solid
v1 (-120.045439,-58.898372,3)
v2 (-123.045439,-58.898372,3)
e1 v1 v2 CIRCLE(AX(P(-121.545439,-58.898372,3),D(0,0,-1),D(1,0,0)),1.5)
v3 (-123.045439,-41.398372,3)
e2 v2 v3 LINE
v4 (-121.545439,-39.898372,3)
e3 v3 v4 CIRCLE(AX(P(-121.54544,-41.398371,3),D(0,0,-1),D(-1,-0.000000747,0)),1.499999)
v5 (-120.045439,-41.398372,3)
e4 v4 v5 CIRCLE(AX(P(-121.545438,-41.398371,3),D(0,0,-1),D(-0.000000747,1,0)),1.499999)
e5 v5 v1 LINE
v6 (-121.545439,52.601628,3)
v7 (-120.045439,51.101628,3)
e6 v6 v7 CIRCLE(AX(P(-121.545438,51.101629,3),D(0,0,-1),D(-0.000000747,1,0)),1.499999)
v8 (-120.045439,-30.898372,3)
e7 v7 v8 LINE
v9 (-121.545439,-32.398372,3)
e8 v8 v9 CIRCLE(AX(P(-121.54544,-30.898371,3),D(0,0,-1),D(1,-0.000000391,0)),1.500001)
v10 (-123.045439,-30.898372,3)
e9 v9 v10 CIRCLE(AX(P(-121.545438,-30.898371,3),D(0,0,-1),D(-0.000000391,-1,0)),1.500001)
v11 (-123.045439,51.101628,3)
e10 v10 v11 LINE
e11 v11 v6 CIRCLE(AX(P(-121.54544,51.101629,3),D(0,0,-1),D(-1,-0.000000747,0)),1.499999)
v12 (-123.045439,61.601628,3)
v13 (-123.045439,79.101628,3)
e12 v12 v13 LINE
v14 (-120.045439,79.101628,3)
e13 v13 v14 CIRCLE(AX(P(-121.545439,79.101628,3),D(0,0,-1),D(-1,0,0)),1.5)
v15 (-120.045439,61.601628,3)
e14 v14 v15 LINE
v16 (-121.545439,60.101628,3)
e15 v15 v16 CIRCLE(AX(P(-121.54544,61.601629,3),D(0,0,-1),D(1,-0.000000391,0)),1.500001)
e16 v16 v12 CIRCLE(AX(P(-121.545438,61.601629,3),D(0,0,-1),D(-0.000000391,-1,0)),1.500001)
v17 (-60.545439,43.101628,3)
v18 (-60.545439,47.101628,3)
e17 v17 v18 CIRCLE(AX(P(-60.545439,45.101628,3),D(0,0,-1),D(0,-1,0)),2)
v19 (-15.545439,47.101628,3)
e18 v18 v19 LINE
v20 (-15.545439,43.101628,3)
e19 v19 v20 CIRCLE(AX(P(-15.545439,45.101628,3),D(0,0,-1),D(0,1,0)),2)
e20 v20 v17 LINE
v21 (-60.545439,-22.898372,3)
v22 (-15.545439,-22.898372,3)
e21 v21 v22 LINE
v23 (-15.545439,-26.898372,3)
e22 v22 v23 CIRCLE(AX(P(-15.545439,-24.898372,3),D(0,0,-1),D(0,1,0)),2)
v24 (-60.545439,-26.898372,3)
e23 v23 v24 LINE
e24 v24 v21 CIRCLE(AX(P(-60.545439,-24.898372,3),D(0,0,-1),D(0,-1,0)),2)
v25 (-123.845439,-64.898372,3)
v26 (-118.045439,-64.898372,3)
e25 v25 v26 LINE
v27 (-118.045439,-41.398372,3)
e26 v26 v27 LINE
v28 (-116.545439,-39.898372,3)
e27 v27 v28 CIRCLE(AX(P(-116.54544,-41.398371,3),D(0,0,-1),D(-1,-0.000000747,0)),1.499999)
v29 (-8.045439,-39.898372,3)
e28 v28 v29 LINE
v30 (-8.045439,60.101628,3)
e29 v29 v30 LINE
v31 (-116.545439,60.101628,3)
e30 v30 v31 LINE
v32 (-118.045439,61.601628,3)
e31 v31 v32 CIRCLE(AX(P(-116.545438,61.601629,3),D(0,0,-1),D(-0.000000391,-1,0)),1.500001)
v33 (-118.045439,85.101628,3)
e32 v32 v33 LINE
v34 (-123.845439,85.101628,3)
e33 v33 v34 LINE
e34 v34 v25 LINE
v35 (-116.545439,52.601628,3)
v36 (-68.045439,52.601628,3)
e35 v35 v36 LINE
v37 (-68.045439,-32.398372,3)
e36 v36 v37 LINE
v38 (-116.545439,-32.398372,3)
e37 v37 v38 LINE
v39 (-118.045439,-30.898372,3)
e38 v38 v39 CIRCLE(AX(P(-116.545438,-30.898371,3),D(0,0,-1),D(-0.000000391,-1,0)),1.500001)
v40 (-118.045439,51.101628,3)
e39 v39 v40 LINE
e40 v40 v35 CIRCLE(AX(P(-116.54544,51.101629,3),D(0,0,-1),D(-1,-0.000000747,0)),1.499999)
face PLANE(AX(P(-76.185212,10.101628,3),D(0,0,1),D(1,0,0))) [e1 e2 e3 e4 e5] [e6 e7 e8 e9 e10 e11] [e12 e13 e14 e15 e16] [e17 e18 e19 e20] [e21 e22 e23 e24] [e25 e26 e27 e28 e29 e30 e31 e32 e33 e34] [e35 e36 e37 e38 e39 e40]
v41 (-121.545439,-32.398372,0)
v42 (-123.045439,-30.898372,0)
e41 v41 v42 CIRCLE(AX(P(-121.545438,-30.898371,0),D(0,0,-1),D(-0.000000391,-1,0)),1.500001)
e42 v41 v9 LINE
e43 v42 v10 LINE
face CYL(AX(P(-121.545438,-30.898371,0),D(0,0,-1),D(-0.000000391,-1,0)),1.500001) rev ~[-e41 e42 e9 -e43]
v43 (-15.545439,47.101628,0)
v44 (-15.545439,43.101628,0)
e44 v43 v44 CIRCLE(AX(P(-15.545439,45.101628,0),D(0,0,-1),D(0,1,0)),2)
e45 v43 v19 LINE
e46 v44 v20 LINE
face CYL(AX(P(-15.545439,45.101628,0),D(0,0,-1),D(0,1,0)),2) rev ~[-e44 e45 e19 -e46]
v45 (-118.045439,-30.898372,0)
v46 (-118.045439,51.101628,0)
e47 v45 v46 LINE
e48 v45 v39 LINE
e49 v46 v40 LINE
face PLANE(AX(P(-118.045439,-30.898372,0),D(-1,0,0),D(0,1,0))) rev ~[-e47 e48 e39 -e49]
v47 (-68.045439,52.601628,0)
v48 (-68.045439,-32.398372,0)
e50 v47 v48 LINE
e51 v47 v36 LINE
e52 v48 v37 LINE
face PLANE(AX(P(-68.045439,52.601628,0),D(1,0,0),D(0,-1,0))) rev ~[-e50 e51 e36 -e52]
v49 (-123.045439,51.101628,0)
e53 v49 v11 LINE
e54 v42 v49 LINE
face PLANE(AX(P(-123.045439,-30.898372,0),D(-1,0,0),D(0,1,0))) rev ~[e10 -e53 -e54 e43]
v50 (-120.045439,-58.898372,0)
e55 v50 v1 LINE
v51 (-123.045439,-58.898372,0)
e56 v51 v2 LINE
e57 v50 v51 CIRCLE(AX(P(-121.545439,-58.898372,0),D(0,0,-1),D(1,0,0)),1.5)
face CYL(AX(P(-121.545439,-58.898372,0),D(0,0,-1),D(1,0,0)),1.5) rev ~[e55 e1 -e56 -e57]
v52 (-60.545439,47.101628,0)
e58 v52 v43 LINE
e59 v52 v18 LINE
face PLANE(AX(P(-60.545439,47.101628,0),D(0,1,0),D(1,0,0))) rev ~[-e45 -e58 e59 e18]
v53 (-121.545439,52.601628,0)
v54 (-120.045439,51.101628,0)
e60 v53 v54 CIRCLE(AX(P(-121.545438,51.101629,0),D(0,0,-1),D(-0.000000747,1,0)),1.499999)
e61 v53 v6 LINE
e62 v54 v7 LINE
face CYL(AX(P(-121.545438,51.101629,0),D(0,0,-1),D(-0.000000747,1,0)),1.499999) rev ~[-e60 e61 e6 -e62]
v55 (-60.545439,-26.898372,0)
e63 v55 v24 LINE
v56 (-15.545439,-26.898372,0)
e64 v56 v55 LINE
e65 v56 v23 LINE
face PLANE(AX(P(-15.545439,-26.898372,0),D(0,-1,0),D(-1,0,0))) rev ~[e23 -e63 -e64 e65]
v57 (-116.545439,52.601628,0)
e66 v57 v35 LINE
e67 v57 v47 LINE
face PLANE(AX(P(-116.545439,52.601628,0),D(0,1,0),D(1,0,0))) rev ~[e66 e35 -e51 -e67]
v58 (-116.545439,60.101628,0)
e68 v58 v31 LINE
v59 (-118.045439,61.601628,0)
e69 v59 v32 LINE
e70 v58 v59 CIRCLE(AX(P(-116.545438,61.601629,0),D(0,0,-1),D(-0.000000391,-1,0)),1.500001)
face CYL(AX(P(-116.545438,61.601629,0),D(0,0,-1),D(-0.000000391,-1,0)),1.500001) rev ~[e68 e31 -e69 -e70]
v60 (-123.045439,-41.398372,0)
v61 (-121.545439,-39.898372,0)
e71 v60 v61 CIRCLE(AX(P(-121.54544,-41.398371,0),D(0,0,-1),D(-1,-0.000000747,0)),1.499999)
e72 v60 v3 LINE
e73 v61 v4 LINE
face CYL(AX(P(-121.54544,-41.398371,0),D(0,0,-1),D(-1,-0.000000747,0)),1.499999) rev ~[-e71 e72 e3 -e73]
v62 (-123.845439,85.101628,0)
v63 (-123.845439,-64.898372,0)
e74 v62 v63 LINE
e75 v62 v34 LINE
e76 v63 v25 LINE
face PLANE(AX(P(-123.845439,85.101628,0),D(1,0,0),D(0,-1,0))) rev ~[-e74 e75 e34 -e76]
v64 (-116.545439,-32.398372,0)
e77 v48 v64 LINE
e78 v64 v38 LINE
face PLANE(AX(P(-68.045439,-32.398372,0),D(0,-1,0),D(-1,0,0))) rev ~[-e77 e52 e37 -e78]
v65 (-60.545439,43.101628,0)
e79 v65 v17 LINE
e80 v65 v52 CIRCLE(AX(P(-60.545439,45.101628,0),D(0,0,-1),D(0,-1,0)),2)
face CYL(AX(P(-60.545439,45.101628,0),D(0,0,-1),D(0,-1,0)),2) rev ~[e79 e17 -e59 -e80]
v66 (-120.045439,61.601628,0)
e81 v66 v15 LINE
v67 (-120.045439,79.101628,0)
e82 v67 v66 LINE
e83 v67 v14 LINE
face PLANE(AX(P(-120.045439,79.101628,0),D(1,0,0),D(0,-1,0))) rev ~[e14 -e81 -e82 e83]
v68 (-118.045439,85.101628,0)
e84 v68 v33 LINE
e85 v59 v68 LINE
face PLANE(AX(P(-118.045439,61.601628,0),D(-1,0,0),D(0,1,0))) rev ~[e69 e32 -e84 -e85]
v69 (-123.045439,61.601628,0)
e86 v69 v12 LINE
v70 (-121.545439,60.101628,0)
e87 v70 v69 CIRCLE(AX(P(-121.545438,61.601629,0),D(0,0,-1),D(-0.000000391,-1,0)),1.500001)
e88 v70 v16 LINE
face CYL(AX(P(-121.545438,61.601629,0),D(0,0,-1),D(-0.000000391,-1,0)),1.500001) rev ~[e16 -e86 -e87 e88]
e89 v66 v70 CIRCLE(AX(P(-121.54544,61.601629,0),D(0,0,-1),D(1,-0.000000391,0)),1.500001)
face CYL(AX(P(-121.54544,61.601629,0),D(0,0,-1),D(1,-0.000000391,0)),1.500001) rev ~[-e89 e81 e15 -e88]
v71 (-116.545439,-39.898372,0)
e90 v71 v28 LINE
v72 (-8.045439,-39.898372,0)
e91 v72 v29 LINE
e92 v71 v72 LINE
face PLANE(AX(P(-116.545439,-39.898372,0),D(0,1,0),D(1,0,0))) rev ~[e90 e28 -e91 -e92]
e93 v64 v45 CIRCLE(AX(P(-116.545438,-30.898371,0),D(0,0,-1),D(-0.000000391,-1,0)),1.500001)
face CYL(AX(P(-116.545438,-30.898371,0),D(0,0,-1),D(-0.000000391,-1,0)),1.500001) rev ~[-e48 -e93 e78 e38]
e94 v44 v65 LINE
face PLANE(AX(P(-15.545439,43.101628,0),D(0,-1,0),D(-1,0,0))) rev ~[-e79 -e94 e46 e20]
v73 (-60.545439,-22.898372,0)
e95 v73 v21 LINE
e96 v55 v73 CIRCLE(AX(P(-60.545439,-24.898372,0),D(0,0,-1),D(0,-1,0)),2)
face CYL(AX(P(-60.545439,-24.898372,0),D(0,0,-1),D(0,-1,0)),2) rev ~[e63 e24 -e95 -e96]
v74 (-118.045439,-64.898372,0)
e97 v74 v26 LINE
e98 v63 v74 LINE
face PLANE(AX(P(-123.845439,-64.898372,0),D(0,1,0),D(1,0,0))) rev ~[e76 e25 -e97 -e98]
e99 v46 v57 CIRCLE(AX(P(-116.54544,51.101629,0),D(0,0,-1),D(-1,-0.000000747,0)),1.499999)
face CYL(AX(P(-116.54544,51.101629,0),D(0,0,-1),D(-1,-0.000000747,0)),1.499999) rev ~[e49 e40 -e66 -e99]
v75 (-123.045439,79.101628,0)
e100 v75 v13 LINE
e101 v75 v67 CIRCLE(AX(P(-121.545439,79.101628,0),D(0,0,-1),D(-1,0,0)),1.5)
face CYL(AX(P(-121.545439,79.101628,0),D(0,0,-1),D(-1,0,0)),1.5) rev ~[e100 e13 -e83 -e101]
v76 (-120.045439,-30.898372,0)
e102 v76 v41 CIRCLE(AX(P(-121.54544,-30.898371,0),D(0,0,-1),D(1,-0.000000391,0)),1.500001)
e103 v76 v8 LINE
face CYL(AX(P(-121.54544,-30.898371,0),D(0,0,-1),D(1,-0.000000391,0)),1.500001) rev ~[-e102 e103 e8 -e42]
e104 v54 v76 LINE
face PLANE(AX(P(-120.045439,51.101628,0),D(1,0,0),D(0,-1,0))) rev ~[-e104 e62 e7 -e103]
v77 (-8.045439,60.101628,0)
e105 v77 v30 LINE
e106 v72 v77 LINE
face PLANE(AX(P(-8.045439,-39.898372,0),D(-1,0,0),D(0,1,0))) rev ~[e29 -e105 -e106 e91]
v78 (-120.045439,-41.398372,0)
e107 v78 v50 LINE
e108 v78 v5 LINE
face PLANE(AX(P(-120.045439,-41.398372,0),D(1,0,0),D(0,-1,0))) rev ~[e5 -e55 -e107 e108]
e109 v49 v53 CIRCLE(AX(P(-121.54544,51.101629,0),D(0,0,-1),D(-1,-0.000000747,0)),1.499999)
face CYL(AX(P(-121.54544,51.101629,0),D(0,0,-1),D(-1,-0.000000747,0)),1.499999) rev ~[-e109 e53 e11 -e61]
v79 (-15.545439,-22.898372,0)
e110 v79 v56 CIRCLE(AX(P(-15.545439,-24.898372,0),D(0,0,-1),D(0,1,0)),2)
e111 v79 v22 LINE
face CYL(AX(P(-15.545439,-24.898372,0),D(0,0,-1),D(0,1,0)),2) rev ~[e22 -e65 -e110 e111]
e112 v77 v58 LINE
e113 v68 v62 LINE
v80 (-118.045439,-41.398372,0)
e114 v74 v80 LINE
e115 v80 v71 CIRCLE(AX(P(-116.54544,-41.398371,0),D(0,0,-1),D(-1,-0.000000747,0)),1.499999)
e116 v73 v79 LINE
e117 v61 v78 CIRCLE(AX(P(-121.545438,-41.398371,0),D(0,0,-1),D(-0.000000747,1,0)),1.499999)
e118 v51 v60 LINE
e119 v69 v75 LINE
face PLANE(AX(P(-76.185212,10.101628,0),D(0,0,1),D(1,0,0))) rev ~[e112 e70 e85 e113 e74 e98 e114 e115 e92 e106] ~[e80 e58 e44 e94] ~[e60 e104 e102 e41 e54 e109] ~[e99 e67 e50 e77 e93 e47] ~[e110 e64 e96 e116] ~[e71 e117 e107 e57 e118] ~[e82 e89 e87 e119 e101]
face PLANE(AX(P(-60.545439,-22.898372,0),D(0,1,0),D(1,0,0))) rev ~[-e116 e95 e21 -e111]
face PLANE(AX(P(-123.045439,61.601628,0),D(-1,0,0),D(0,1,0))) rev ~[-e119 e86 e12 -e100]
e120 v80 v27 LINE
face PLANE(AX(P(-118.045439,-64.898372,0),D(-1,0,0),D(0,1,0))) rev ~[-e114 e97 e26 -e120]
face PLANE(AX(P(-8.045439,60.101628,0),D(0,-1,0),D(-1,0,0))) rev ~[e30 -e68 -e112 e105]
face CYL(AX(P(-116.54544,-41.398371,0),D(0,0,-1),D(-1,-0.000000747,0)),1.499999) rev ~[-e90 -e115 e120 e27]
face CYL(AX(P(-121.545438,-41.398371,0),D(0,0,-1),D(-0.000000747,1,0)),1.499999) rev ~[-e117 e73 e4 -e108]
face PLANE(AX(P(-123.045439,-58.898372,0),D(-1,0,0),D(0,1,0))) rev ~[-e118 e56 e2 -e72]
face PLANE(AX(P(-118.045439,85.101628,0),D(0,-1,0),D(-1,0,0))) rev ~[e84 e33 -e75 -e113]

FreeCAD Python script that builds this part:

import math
import FreeCAD as App
import Part
import Sketcher
from FreeCAD import Vector

doc = App.newDocument("Part")
body = doc.addObject("PartDesign::Body", "Body")

sketch1 = doc.addObject("Sketcher::SketchObject", "Sketch")
body.addObject(sketch1)
sketch1.AttachmentSupport = (doc.XY_Plane, [""])
sketch1.MapMode = "FlatFace"
sketch1.addGeometry([
    Part.LineSegment(Vector(-8, -39.9, 0), Vector(-8, 60.1, 0)),
    Part.LineSegment(Vector(-8, 60.1, 0), Vector(-116.5, 60.1, 0)),
    Part.ArcOfCircle(Part.Circle(Vector(-116.5, 61.6, 0), Vector(0, 0, 1), 1.5), math.radians(-180), math.radians(-90)),
    Part.LineSegment(Vector(-118, 61.6, 0), Vector(-118, 85.1, 0)),
    Part.LineSegment(Vector(-118, 85.1, 0), Vector(-123.8, 85.1, 0)),
    Part.LineSegment(Vector(-123.8, 85.1, 0), Vector(-123.8, -64.9, 0)),
    Part.LineSegment(Vector(-123.8, -64.9, 0), Vector(-118, -64.9, 0)),
    Part.LineSegment(Vector(-118, -64.9, 0), Vector(-118, -41.4, 0)),
    Part.ArcOfCircle(Part.Circle(Vector(-116.5, -41.4, 0), Vector(0, 0, 1), 1.5), math.radians(90), math.radians(180)),
    Part.LineSegment(Vector(-116.5, -39.9, 0), Vector(-8, -39.9, 0)),
    Part.LineSegment(Vector(-120, -41.4, 0), Vector(-120, -58.9, 0)),
    Part.ArcOfCircle(Part.Circle(Vector(-121.5, -58.9, 0), Vector(0, 0, 1), 1.5), math.radians(180), math.radians(360)),
    Part.LineSegment(Vector(-123, -58.9, 0), Vector(-123, -41.4, 0)),
    Part.ArcOfCircle(Part.Circle(Vector(-121.5, -41.4, 0), Vector(0, 0, 1), 1.5), math.radians(90), math.radians(180)),
    Part.ArcOfCircle(Part.Circle(Vector(-121.5, -41.4, 0), Vector(0, 0, 1), 1.5), math.radians(0), math.radians(90)),
    Part.ArcOfCircle(Part.Circle(Vector(-15.5, -24.9, 0), Vector(0, 0, 1), 2), math.radians(-90), math.radians(90)),
    Part.LineSegment(Vector(-15.5, -26.9, 0), Vector(-60.5, -26.9, 0)),
    Part.ArcOfCircle(Part.Circle(Vector(-60.5, -24.9, 0), Vector(0, 0, 1), 2), math.radians(90), math.radians(270)),
    Part.LineSegment(Vector(-60.5, -22.9, 0), Vector(-15.5, -22.9, 0)),
    Part.ArcOfCircle(Part.Circle(Vector(-121.5, -30.9, 0), Vector(0, 0, 1), 1.5), math.radians(-180), math.radians(-90)),
    Part.LineSegment(Vector(-123, -30.9, 0), Vector(-123, 51.1, 0)),
    Part.ArcOfCircle(Part.Circle(Vector(-121.5, 51.1, 0), Vector(0, 0, 1), 1.5), math.radians(90), math.radians(180)),
    Part.ArcOfCircle(Part.Circle(Vector(-121.5, 51.1, 0), Vector(0, 0, 1), 1.5), math.radians(0), math.radians(90)),
    Part.LineSegment(Vector(-120, 51.1, 0), Vector(-120, -30.9, 0)),
    Part.ArcOfCircle(Part.Circle(Vector(-121.5, -30.9, 0), Vector(0, 0, 1), 1.5), math.radians(-90), math.radians(0)),
    Part.ArcOfCircle(Part.Circle(Vector(-116.5, -30.9, 0), Vector(0, 0, 1), 1.5), math.radians(-180), math.radians(-90)),
    Part.LineSegment(Vector(-118, -30.9, 0), Vector(-118, 51.1, 0)),
    Part.ArcOfCircle(Part.Circle(Vector(-116.5, 51.1, 0), Vector(0, 0, 1), 1.5), math.radians(90), math.radians(180)),
    Part.LineSegment(Vector(-116.5, 52.6, 0), Vector(-68, 52.6, 0)),
    Part.LineSegment(Vector(-68, 52.6, 0), Vector(-68, -32.4, 0)),
    Part.LineSegment(Vector(-68, -32.4, 0), Vector(-116.5, -32.4, 0)),
    Part.ArcOfCircle(Part.Circle(Vector(-121.5, 61.6, 0), Vector(0, 0, 1), 1.5), math.radians(-180), math.radians(-90)),
    Part.LineSegment(Vector(-123, 61.6, 0), Vector(-123, 79.1, 0)),
    Part.ArcOfCircle(Part.Circle(Vector(-121.5, 79.1, 0), Vector(0, 0, 1), 1.5), math.radians(0), math.radians(180)),
    Part.LineSegment(Vector(-120, 79.1, 0), Vector(-120, 61.6, 0)),
    Part.ArcOfCircle(Part.Circle(Vector(-121.5, 61.6, 0), Vector(0, 0, 1), 1.5), math.radians(-90), math.radians(0)),
    Part.LineSegment(Vector(-60.5, 47.1, 0), Vector(-15.5, 47.1, 0)),
    Part.ArcOfCircle(Part.Circle(Vector(-15.5, 45.1, 0), Vector(0, 0, 1), 2), math.radians(-90), math.radians(90)),
    Part.LineSegment(Vector(-15.5, 43.1, 0), Vector(-60.5, 43.1, 0)),
    Part.ArcOfCircle(Part.Circle(Vector(-60.5, 45.1, 0), Vector(0, 0, 1), 2), math.radians(90), math.radians(270)),
], False)
sketch1.addConstraint([
    Sketcher.Constraint("Coincident", 0, 2, 1, 1),
    Sketcher.Constraint("Tangent", 1, 2, 2, 2),
    Sketcher.Constraint("Tangent", 2, 1, 3, 1),
    Sketcher.Constraint("Coincident", 3, 2, 4, 1),
    Sketcher.Constraint("Coincident", 4, 2, 5, 1),
    Sketcher.Constraint("Coincident", 5, 2, 6, 1),
    Sketcher.Constraint("Coincident", 6, 2, 7, 1),
    Sketcher.Constraint("Tangent", 7, 2, 8, 2),
    Sketcher.Constraint("Tangent", 8, 1, 9, 1),
    Sketcher.Constraint("Coincident", 9, 2, 0, 1),
    Sketcher.Constraint("Tangent", 10, 2, 11, 2),
    Sketcher.Constraint("Tangent", 11, 1, 12, 1),
    Sketcher.Constraint("Tangent", 12, 2, 13, 2),
    Sketcher.Constraint("Tangent", 13, 1, 14, 2),
    Sketcher.Constraint("Tangent", 14, 1, 10, 1),
    Sketcher.Constraint("Tangent", 15, 1, 16, 1),
    Sketcher.Constraint("Tangent", 16, 2, 17, 2),
    Sketcher.Constraint("Tangent", 17, 1, 18, 1),
    Sketcher.Constraint("Tangent", 18, 2, 15, 2),
    Sketcher.Constraint("Tangent", 19, 1, 20, 1),
    Sketcher.Constraint("Tangent", 20, 2, 21, 2),
    Sketcher.Constraint("Tangent", 21, 1, 22, 2),
    Sketcher.Constraint("Tangent", 22, 1, 23, 1),
    Sketcher.Constraint("Tangent", 23, 2, 24, 2),
    Sketcher.Constraint("Tangent", 24, 1, 19, 2),
    Sketcher.Constraint("Tangent", 25, 1, 26, 1),
    Sketcher.Constraint("Tangent", 26, 2, 27, 2),
    Sketcher.Constraint("Tangent", 27, 1, 28, 1),
    Sketcher.Constraint("Coincident", 28, 2, 29, 1),
    Sketcher.Constraint("Coincident", 29, 2, 30, 1),
    Sketcher.Constraint("Tangent", 30, 2, 25, 2),
    Sketcher.Constraint("Tangent", 31, 1, 32, 1),
    Sketcher.Constraint("Tangent", 32, 2, 33, 2),
    Sketcher.Constraint("Tangent", 33, 1, 34, 1),
    Sketcher.Constraint("Tangent", 34, 2, 35, 2),
    Sketcher.Constraint("Tangent", 35, 1, 31, 2),
    Sketcher.Constraint("Tangent", 36, 2, 37, 2),
    Sketcher.Constraint("Tangent", 37, 1, 38, 1),
    Sketcher.Constraint("Tangent", 38, 2, 39, 2),
    Sketcher.Constraint("Tangent", 39, 1, 36, 1),
    Sketcher.Constraint("Vertical", 0),
    Sketcher.Constraint("Horizontal", 1),
    Sketcher.Constraint("Vertical", 3),
    Sketcher.Constraint("Horizontal", 4),
    Sketcher.Constraint("Vertical", 5),
    Sketcher.Constraint("Horizontal", 6),
    Sketcher.Constraint("Vertical", 7),
    Sketcher.Constraint("Horizontal", 9),
    Sketcher.Constraint("Vertical", 10),
    Sketcher.Constraint("Vertical", 12),
    Sketcher.Constraint("Horizontal", 16),
    Sketcher.Constraint("Horizontal", 18),
    Sketcher.Constraint("Vertical", 20),
    Sketcher.Constraint("Vertical", 23),
    Sketcher.Constraint("Vertical", 26),
    Sketcher.Constraint("Horizontal", 28),
    Sketcher.Constraint("Vertical", 29),
    Sketcher.Constraint("Horizontal", 30),
    Sketcher.Constraint("Vertical", 32),
    Sketcher.Constraint("Vertical", 34),
    Sketcher.Constraint("Horizontal", 36),
    Sketcher.Constraint("Horizontal", 38),
    Sketcher.Constraint("Equal", 2, 8),
    Sketcher.Constraint("Equal", 8, 11),
    Sketcher.Constraint("Equal", 11, 13),
    Sketcher.Constraint("Equal", 14, 19),
    Sketcher.Constraint("Equal", 19, 21),
    Sketcher.Constraint("Equal", 21, 22),
    Sketcher.Constraint("Equal", 24, 25),
    Sketcher.Constraint("Equal", 25, 27),
    Sketcher.Constraint("Equal", 27, 31),
    Sketcher.Constraint("Equal", 31, 33),
    Sketcher.Constraint("Equal", 17, 37),
    Sketcher.Constraint("Horizontal", 8, 3, 13, 3),
    Sketcher.Constraint("Horizontal", 24, 3, 25, 3),
    Sketcher.Constraint("Horizontal", 22, 3, 27, 3),
    Sketcher.Constraint("Horizontal", 2, 3, 31, 3),
    Sketcher.Constraint("Vertical", 2, 3, 8, 3),
    Sketcher.Constraint("Vertical", 14, 3, 19, 3),
    Sketcher.Constraint("Vertical", 8, 3, 25, 3),
    Sketcher.Constraint("Vertical", 24, 3, 31, 3),
    Sketcher.Constraint("Vertical", 15, 3, 37, 3),
    Sketcher.Constraint("Vertical", 17, 3, 39, 3),
    Sketcher.Constraint("Vertical", 35, 3, 13, 1),
    Sketcher.Constraint("Vertical", 13, 1, 21, 1),
    Sketcher.Constraint("Vertical", 21, 1, 24, 1),
    Sketcher.Constraint("Vertical", 24, 1, 35, 1),
    Sketcher.Constraint("Equal", 3, 7),
    Sketcher.Constraint("Equal", 12, 32),
    Sketcher.Constraint("Radius", 15, 2.0),
    Sketcher.Constraint("Radius", 2, 1.500001),
    Sketcher.Constraint("DistanceX", 16, 2, 16, 1, 45.0),
    Sketcher.Constraint("DistanceY", 0, 1, 0, 2, 100.0),
    Sketcher.Constraint("DistanceY", 5, 2, 5, 1, 150.0),
    Sketcher.Constraint("DistanceY", 20, 1, 20, 2, 82.0),
    Sketcher.Constraint("DistanceX", 1, 2, 1, 1, 108.5),
    Sketcher.Constraint("DistanceX", 4, 2, 4, 1, 5.8),
    Sketcher.Constraint("DistanceX", 28, 1, 28, 2, 48.5),
    Sketcher.Constraint("DistanceY", 10, 2, 10, 1, 17.5),
    Sketcher.Constraint("DistanceX", 11, 3, 8, 3, 4.999999),
    Sketcher.Constraint("DistanceX", 8, 3, 15, 3, 101.000001),
    Sketcher.Constraint("DistanceY", 11, 3, 15, 3, 34.0),
    Sketcher.Constraint("DistanceY", 11, 3, 19, 3, 28.000001),
    Sketcher.Constraint("DistanceY", 15, 3, 37, 3, 70.0),
    Sketcher.Constraint("DistanceX", 2, 3, -1, 1, 116.545438),
    Sketcher.Constraint("DistanceY", -1, 1, 2, 3, 61.601629),
])
pad1 = doc.addObject("PartDesign::Pad", "Pad")
body.addObject(pad1)
pad1.Profile = sketch1
pad1.Length = 3

doc.recompute()
